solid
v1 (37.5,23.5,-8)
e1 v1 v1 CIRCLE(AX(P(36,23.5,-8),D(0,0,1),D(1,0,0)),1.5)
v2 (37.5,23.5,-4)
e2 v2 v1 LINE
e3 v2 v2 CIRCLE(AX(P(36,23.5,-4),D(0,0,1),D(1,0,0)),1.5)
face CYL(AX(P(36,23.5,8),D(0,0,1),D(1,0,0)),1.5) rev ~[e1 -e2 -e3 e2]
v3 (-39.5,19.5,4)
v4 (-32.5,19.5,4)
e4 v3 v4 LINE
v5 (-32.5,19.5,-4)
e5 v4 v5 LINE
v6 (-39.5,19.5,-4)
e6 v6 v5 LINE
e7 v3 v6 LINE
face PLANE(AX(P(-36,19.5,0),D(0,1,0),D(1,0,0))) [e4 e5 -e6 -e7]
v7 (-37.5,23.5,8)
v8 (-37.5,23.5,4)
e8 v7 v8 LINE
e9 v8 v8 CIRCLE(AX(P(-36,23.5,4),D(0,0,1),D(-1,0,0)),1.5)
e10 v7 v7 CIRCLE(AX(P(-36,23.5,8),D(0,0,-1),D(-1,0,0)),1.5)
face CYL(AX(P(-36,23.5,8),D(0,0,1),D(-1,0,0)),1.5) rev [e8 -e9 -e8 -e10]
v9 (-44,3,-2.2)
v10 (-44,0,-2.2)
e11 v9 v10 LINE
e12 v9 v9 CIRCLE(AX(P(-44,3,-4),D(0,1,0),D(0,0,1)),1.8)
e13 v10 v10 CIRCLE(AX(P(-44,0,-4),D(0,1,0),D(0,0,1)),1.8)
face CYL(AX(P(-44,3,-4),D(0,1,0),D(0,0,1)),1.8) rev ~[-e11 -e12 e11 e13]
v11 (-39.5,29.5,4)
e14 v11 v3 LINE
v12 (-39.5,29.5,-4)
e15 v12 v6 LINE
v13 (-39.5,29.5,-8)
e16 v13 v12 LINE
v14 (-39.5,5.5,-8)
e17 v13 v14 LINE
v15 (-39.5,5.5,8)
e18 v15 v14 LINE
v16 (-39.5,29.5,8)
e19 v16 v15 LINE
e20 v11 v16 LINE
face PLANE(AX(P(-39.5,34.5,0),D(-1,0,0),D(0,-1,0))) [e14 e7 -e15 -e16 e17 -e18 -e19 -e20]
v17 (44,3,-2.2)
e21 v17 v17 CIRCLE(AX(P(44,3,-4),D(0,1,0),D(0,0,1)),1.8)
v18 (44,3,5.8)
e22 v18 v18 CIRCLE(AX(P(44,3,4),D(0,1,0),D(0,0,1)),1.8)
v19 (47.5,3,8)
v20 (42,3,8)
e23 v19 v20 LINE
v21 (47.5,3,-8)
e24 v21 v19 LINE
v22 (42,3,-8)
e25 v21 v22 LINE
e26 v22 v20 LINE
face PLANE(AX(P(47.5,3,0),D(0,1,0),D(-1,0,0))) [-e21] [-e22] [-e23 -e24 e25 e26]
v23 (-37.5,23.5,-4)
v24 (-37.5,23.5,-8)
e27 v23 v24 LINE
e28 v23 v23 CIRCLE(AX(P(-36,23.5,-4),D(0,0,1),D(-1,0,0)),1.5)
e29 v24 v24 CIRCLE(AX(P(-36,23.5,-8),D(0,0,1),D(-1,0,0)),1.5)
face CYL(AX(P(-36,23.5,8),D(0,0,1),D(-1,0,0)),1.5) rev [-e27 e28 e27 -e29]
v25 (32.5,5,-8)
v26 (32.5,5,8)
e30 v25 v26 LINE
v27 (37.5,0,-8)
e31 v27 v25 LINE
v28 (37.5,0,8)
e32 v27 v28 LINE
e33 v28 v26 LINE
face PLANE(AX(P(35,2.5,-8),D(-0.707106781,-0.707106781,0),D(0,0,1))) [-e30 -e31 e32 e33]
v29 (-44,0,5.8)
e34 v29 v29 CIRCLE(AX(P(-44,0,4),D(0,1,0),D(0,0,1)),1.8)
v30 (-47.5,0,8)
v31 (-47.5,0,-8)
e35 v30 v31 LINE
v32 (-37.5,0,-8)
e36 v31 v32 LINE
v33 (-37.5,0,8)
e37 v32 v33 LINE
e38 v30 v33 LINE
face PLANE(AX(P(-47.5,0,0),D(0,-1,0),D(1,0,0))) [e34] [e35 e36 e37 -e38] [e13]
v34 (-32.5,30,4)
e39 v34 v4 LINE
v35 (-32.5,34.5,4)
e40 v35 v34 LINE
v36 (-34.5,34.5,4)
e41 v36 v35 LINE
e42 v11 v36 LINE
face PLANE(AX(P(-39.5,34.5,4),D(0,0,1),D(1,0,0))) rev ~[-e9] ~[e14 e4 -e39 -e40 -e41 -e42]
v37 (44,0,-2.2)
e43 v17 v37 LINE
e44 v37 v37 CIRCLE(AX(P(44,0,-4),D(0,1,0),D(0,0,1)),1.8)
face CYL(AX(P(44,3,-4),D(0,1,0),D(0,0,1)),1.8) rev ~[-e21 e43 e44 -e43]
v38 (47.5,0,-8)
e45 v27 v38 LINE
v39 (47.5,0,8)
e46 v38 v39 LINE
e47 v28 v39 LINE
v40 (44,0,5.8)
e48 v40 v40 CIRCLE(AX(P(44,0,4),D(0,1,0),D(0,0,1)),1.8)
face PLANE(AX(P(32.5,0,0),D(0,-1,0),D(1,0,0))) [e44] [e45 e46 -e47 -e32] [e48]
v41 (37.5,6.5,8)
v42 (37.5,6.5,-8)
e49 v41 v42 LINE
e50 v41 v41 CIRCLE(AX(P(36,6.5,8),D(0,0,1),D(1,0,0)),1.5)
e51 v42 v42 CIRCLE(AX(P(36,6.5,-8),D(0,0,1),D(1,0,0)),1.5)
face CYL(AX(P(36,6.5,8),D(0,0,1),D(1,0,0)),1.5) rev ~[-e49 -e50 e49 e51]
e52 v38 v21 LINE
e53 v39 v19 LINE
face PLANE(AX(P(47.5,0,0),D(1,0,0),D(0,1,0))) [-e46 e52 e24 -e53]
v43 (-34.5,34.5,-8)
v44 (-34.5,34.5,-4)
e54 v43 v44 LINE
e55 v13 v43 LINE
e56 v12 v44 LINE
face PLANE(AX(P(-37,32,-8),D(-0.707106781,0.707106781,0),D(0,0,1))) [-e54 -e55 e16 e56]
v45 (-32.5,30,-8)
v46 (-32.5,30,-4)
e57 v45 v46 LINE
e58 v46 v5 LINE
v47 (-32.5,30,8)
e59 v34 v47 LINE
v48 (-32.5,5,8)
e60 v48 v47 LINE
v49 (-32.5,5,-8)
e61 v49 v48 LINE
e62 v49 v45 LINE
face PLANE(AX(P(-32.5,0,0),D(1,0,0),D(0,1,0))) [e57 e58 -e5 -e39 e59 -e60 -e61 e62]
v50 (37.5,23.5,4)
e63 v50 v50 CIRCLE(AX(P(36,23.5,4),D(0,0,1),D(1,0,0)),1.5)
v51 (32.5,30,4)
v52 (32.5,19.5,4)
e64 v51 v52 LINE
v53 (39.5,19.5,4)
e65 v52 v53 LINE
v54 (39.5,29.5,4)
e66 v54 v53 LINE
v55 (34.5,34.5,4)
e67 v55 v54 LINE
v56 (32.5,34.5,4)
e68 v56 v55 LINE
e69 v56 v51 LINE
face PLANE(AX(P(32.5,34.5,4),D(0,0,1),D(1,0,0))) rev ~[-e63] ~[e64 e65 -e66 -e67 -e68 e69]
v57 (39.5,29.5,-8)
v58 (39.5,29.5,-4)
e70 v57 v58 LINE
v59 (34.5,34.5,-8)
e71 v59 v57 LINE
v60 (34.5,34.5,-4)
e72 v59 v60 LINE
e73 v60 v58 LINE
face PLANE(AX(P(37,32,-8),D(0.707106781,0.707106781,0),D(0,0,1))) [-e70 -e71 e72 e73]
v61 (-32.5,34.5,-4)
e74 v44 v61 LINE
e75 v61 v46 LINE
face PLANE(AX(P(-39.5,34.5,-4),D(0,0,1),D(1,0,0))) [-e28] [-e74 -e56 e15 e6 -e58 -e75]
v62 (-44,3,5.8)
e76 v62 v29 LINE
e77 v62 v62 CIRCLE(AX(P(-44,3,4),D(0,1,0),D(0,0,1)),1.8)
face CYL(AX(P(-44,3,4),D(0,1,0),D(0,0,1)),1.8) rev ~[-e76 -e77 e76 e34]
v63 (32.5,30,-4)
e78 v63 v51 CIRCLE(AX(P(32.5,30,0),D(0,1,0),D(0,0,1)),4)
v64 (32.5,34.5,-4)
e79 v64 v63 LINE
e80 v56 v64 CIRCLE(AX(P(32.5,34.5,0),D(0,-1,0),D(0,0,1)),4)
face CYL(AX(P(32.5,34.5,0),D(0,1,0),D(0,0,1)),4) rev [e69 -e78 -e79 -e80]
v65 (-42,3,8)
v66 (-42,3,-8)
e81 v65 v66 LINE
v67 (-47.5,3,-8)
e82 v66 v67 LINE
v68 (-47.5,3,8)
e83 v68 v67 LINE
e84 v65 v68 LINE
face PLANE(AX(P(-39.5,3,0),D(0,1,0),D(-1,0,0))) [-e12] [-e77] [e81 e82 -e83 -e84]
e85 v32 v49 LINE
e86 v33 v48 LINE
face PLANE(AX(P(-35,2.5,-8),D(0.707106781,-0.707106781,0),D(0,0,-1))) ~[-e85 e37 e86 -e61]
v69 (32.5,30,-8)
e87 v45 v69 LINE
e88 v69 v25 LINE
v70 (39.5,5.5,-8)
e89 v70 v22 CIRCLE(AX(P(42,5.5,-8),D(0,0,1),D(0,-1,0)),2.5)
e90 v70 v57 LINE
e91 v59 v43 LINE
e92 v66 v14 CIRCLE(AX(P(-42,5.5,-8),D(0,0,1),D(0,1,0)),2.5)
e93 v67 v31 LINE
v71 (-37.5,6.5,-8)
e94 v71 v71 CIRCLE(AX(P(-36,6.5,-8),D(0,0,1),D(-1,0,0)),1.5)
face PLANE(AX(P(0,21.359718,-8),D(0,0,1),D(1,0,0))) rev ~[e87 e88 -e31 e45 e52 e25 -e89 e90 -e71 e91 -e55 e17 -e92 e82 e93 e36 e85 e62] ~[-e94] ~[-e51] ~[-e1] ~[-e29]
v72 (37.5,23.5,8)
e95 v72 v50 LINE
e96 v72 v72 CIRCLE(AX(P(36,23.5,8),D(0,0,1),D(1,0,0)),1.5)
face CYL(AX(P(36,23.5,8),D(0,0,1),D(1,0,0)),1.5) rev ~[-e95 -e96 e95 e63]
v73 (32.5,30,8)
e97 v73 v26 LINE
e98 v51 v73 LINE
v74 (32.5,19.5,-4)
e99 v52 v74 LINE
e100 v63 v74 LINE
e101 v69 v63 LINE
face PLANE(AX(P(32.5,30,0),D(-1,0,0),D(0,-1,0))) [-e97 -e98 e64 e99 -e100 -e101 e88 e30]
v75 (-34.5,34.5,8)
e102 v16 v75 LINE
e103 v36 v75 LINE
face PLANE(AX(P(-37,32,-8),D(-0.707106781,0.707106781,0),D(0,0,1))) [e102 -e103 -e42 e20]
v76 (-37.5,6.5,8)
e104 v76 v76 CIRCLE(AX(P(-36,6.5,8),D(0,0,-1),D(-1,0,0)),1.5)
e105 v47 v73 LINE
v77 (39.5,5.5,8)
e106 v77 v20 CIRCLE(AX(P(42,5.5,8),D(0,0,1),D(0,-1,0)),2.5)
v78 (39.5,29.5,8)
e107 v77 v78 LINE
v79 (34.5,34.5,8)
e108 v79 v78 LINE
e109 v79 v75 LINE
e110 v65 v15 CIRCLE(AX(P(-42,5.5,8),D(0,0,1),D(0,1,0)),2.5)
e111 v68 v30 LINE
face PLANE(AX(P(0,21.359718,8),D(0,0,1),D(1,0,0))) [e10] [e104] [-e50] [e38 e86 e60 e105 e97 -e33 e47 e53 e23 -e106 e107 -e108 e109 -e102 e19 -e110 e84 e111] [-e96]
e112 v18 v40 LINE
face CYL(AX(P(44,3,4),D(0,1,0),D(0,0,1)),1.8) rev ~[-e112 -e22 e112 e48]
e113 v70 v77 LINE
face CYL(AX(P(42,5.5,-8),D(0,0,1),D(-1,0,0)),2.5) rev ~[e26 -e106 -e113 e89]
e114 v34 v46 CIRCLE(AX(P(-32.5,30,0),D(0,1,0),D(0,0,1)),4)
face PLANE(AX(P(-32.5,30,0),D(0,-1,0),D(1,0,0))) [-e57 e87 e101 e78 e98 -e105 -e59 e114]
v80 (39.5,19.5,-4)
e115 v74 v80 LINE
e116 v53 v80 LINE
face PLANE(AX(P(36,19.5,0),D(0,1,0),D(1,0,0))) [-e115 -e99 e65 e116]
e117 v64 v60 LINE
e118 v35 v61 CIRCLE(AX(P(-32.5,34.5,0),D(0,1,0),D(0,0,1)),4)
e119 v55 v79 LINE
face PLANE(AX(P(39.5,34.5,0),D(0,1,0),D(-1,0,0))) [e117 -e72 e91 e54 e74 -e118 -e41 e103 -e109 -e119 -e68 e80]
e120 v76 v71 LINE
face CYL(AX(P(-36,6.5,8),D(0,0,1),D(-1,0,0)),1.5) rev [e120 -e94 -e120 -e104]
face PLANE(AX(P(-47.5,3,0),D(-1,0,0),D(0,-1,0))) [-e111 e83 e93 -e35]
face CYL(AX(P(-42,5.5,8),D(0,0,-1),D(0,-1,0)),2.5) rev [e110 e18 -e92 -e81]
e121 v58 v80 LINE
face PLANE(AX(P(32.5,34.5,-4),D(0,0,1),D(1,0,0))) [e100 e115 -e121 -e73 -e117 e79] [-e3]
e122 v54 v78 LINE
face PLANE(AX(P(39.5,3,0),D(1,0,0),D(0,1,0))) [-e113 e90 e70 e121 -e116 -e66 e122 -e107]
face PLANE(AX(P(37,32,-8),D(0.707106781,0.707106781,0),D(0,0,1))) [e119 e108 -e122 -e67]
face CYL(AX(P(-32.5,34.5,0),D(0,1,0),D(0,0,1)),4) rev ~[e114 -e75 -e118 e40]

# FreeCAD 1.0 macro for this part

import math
import FreeCAD as App
import Part
import Sketcher
Q = App.Units.Quantity


def edges_at(feature, points):
    """Names of the edges that pass closest to the given points."""
    edges = feature.Shape.Edges
    near = lambda p: min(range(len(edges)), key=lambda i: edges[i].distToShape(Part.Vertex(*p))[0])
    return sorted({f"Edge{near(p) + 1}" for p in points})


def add_polygon(sketch, points):
    """Adds a closed chain of lines whose ends are joined by coincident constraints."""
    first, n = sketch.GeometryCount, len(points)
    for a, b in zip(points, points[1:] + points[:1]):
        sketch.addGeometry(Part.LineSegment(App.Vector(*a, 0), App.Vector(*b, 0)), False)
    for i in range(n):
        sketch.addConstraint(Sketcher.Constraint("Coincident", first + i, 2, first + (i + 1) % n, 1))

doc = App.newDocument("Part")
params = doc.addObject("Spreadsheet::Sheet", "Params")
for row, (alias, value) in enumerate([
    ("sketch1_width", "15 mm"),
    ("sketch1_width2", "65 mm"),
    ("sketch1_width3", "8 mm"),
    ("sketch1_height", "30 mm"),
    ("sketch1_height2", "3 mm"),
    ("pad1_length", "16 mm"),
    ("chamfer_size", "5 mm"),
    ("fillet_radius", "2.5 mm"),
    ("sketch2_diameter", "3 mm"),
    ("sketch3_diameter", "3.6 mm"),
    ("sketch4_width", "7 mm"),
    ("sketch4_height", "8 mm"),
    ("pocket3_length", "15 mm"),
    ("sketch5_radius", "4 mm"),
    ("pocket4_length", "15 mm"),
], start=1):
    params.set(f"A{row}", alias)
    params.set(f"B{row}", "=" + value)
    params.setAlias(f"B{row}", alias)

body = doc.addObject("PartDesign::Body", "Body")

# Sketch on XY plane
sketch1 = body.newObject("Sketcher::SketchObject", "Sketch")
sketch1.AttachmentSupport = (doc.getObject("XY_Plane"), [""])
sketch1.MapMode = "FlatFace"
add_polygon(sketch1, [(-47.5, 0), (-32.5, 0), (-32.5, 30), (32.5, 30), (32.5, 0), (47.5, 0), (47.5, 3), (39.5, 3), (39.5, 34.5), (-39.5, 34.5), (-39.5, 3), (-47.5, 3)])  # lines 0-11
sketch1.addConstraint([
    Sketcher.Constraint("Horizontal", 0),
    Sketcher.Constraint("Vertical", 1),
    Sketcher.Constraint("Horizontal", 2),
    Sketcher.Constraint("Vertical", 3),
    Sketcher.Constraint("Horizontal", 4),
    Sketcher.Constraint("Vertical", 5),
    Sketcher.Constraint("Horizontal", 6),
    Sketcher.Constraint("Vertical", 7),
    Sketcher.Constraint("Horizontal", 8),
    Sketcher.Constraint("Vertical", 9),
    Sketcher.Constraint("Horizontal", 10),
    Sketcher.Constraint("Vertical", 11),
    Sketcher.Constraint("Symmetric", 0, 2, 3, 2, -1, 1),
    Sketcher.Constraint("Symmetric", 6, 2, 9, 2, -2),
    Sketcher.Constraint("Symmetric", 4, 2, 11, 2, -2),
    Sketcher.Constraint("DistanceX", 0, 1, 0, 2, Q("15 mm")),
    Sketcher.Constraint("DistanceX", 2, 1, 2, 2, Q("65 mm")),
    Sketcher.Constraint("DistanceX", 6, 2, 6, 1, Q("8 mm")),
    Sketcher.Constraint("DistanceY", 1, 1, 1, 2, Q("30 mm")),
    Sketcher.Constraint("DistanceY", 5, 1, 5, 2, Q("3 mm")),
    Sketcher.Constraint("DistanceY", 7, 1, 7, 2, Q("31.5 mm")),
])
sketch1.setExpression("Constraints[27]", "Params.sketch1_width")
sketch1.setExpression("Constraints[28]", "Params.sketch1_width2")
sketch1.setExpression("Constraints[29]", "Params.sketch1_width3")
sketch1.setExpression("Constraints[30]", "Params.sketch1_height")
sketch1.setExpression("Constraints[31]", "Params.sketch1_height2")
pad1 = body.newObject("PartDesign::Pad", "Pad")
pad1.Profile = sketch1
pad1.setExpression("Length", "Params.pad1_length")
pad1.Midplane = True
doc.recompute()

chamfer = body.newObject("PartDesign::Chamfer", "Chamfer")
chamfer.Base = (pad1, edges_at(pad1, [
    (-39.5, 34.5, 0),
    (39.5, 34.5, 0),
    (32.5, 0, 0),
    (-32.5, 0, 0),
]))
chamfer.setExpression("Size", "Params.chamfer_size")
doc.recompute()

fillet = body.newObject("PartDesign::Fillet", "Fillet")
fillet.Base = (chamfer, edges_at(chamfer, [(-39.5, 3, 0), (39.5, 3, 0)]))
fillet.setExpression("Radius", "Params.fillet_radius")

# Sketch on XY plane
sketch2 = body.newObject("Sketcher::SketchObject", "Sketch001")
sketch2.AttachmentSupport = (doc.getObject("XY_Plane"), [""])
sketch2.MapMode = "FlatFace"
sketch2.AttachmentOffset = App.Placement(App.Vector(0, 0, 8), App.Rotation())
sketch2.addGeometry([
    Part.Circle(App.Vector(36, 23.5, 0), App.Vector(0, 0, 1), 1.5),
    Part.Circle(App.Vector(36, 6.5, 0), App.Vector(0, 0, 1), 1.5),
], False)
sketch2.addConstraint([
    Sketcher.Constraint("Equal", 0, 1),
    Sketcher.Constraint("Vertical", 0, 3, 1, 3),
    Sketcher.Constraint("Diameter", 0, Q("3 mm")),
    Sketcher.Constraint("DistanceX", -1, 1, 0, 3, Q("36 mm")),
    Sketcher.Constraint("DistanceY", 1, 3, 0, 3, Q("17 mm")),
    Sketcher.Constraint("DistanceY", -1, 1, 0, 3, Q("23.5 mm")),
])
sketch2.setExpression("Constraints[2]", "Params.sketch2_diameter")
pocket1 = body.newObject("PartDesign::Pocket", "Pocket")
pocket1.Profile = sketch2
pocket1.Type = "ThroughAll"
doc.recompute()

mirrored = body.newObject("PartDesign::Mirrored", "Mirrored")
mirrored.Originals = [pocket1]
mirrored.MirrorPlane = (doc.getObject("YZ_Plane"), [""])
body.Tip = mirrored

# Sketch on XZ plane
sketch3 = body.newObject("Sketcher::SketchObject", "Sketch002")
sketch3.AttachmentSupport = (doc.getObject("XZ_Plane"), [""])
sketch3.MapMode = "FlatFace"
sketch3.AttachmentOffset = App.Placement(App.Vector(0, 0, -3), App.Rotation())
sketch3.addGeometry([
    Part.Circle(App.Vector(44, -4, 0), App.Vector(0, 0, 1), 1.8),
    Part.Circle(App.Vector(44, 4, 0), App.Vector(0, 0, 1), 1.8),
    Part.Circle(App.Vector(-44, -4, 0), App.Vector(0, 0, 1), 1.8),
    Part.Circle(App.Vector(-44, 4, 0), App.Vector(0, 0, 1), 1.8),
], False)
sketch3.addConstraint([
    Sketcher.Constraint("Equal", 0, 1),
    Sketcher.Constraint("Equal", 1, 2),
    Sketcher.Constraint("Equal", 2, 3),
    Sketcher.Constraint("Symmetric", 1, 3, 2, 3, -1, 1),
    Sketcher.Constraint("Symmetric", 0, 3, 3, 3, -1, 1),
    Sketcher.Constraint("Symmetric", 0, 3, 2, 3, -2),
    Sketcher.Constraint("Diameter", 0, Q("3.6 mm")),
    Sketcher.Constraint("DistanceX", -1, 1, 0, 3, Q("44 mm")),
    Sketcher.Constraint("DistanceY", 0, 3, -1, 1, Q("4 mm")),
])
sketch3.setExpression("Constraints[6]", "Params.sketch3_diameter")
pocket2 = body.newObject("PartDesign::Pocket", "Pocket001")
pocket2.Profile = sketch3
pocket2.Type = "ThroughAll"
pocket2.Reversed = True

# Sketch on XZ plane
sketch4 = body.newObject("Sketcher::SketchObject", "Sketch003")
sketch4.AttachmentSupport = (doc.getObject("XZ_Plane"), [""])
sketch4.MapMode = "FlatFace"
sketch4.AttachmentOffset = App.Placement(App.Vector(0, 0, -34.5), App.Rotation())
add_polygon(sketch4, [(32, -4), (32, 4), (40, 4), (40, -4)])  # lines 0-3
add_polygon(sketch4, [(-40, -4), (-40, 4), (-32, 4), (-32, -4)])  # lines 4-7
sketch4.addConstraint([
    Sketcher.Constraint("Vertical", 0),
    Sketcher.Constraint("Horizontal", 1),
    Sketcher.Constraint("Vertical", 2),
    Sketcher.Constraint("Horizontal", 3),
    Sketcher.Constraint("Vertical", 4),
    Sketcher.Constraint("Horizontal", 5),
    Sketcher.Constraint("Vertical", 6),
    Sketcher.Constraint("Horizontal", 7),
    Sketcher.Constraint("Symmetric", 2, 2, 4, 2, -1, 1),
    Sketcher.Constraint("Symmetric", 0, 2, 6, 2, -1, 1),
    Sketcher.Constraint("Horizontal", 1, 2, 4, 2),
    Sketcher.Constraint("DistanceX", 1, 1, 1, 2, Q("7 mm")),
    Sketcher.Constraint("DistanceY", 0, 1, 0, 2, Q("8 mm")),
    Sketcher.Constraint("DistanceX", 4, 2, 0, 2, Q("72 mm")),
])
sketch4.setExpression("Constraints[19]", "Params.sketch4_width")
sketch4.setExpression("Constraints[20]", "Params.sketch4_height")
pocket3 = body.newObject("PartDesign::Pocket", "Pocket002")
pocket3.Profile = sketch4
pocket3.setExpression("Length", "Params.pocket3_length")
pocket3.Reversed = True

# Sketch on XZ plane
sketch5 = body.newObject("Sketcher::SketchObject", "Sketch004")
sketch5.AttachmentSupport = (doc.getObject("XZ_Plane"), [""])
sketch5.MapMode = "FlatFace"
sketch5.AttachmentOffset = App.Placement(App.Vector(0, 0, -34.5), App.Rotation())
sketch5.addGeometry([
    Part.LineSegment(App.Vector(32.5, 4, 0), App.Vector(32.5, -4, 0)),
    Part.ArcOfCircle(Part.Circle(App.Vector(32.5, 0, 0), App.Vector(0, 0, 1), 4), math.radians(90), math.radians(270)),
    Part.LineSegment(App.Vector(-32.5, -4, 0), App.Vector(-32.5, 4, 0)),
    Part.ArcOfCircle(Part.Circle(App.Vector(-32.5, 0, 0), App.Vector(0, 0, 1), 4), math.radians(-90), math.radians(90)),
], False)
sketch5.addConstraint([
    Sketcher.Constraint("Coincident", 0, 1, 1, 1),
    Sketcher.Constraint("Coincident", 1, 2, 0, 2),
    Sketcher.Constraint("Coincident", 2, 1, 3, 1),
    Sketcher.Constraint("Coincident", 3, 2, 2, 2),
    Sketcher.Constraint("Vertical", 0),
    Sketcher.Constraint("Vertical", 2),
    Sketcher.Constraint("Equal", 1, 3),
    Sketcher.Constraint("Symmetric", 1, 3, 3, 3, -1, 1),
    Sketcher.Constraint("Symmetric", 1, 2, 2, 1, -2),
    Sketcher.Constraint("Vertical", 1, 3, 0, 1),
    Sketcher.Constraint("Radius", 1, Q("4 mm")),
    Sketcher.Constraint("DistanceX", 3, 3, 1, 3, Q("65 mm")),
])
sketch5.setExpression("Constraints[10]", "Params.sketch5_radius")
pocket4 = body.newObject("PartDesign::Pocket", "Pocket003")
pocket4.Profile = sketch5
pocket4.setExpression("Length", "Params.pocket4_length")
pocket4.Reversed = True

doc.recompute()
